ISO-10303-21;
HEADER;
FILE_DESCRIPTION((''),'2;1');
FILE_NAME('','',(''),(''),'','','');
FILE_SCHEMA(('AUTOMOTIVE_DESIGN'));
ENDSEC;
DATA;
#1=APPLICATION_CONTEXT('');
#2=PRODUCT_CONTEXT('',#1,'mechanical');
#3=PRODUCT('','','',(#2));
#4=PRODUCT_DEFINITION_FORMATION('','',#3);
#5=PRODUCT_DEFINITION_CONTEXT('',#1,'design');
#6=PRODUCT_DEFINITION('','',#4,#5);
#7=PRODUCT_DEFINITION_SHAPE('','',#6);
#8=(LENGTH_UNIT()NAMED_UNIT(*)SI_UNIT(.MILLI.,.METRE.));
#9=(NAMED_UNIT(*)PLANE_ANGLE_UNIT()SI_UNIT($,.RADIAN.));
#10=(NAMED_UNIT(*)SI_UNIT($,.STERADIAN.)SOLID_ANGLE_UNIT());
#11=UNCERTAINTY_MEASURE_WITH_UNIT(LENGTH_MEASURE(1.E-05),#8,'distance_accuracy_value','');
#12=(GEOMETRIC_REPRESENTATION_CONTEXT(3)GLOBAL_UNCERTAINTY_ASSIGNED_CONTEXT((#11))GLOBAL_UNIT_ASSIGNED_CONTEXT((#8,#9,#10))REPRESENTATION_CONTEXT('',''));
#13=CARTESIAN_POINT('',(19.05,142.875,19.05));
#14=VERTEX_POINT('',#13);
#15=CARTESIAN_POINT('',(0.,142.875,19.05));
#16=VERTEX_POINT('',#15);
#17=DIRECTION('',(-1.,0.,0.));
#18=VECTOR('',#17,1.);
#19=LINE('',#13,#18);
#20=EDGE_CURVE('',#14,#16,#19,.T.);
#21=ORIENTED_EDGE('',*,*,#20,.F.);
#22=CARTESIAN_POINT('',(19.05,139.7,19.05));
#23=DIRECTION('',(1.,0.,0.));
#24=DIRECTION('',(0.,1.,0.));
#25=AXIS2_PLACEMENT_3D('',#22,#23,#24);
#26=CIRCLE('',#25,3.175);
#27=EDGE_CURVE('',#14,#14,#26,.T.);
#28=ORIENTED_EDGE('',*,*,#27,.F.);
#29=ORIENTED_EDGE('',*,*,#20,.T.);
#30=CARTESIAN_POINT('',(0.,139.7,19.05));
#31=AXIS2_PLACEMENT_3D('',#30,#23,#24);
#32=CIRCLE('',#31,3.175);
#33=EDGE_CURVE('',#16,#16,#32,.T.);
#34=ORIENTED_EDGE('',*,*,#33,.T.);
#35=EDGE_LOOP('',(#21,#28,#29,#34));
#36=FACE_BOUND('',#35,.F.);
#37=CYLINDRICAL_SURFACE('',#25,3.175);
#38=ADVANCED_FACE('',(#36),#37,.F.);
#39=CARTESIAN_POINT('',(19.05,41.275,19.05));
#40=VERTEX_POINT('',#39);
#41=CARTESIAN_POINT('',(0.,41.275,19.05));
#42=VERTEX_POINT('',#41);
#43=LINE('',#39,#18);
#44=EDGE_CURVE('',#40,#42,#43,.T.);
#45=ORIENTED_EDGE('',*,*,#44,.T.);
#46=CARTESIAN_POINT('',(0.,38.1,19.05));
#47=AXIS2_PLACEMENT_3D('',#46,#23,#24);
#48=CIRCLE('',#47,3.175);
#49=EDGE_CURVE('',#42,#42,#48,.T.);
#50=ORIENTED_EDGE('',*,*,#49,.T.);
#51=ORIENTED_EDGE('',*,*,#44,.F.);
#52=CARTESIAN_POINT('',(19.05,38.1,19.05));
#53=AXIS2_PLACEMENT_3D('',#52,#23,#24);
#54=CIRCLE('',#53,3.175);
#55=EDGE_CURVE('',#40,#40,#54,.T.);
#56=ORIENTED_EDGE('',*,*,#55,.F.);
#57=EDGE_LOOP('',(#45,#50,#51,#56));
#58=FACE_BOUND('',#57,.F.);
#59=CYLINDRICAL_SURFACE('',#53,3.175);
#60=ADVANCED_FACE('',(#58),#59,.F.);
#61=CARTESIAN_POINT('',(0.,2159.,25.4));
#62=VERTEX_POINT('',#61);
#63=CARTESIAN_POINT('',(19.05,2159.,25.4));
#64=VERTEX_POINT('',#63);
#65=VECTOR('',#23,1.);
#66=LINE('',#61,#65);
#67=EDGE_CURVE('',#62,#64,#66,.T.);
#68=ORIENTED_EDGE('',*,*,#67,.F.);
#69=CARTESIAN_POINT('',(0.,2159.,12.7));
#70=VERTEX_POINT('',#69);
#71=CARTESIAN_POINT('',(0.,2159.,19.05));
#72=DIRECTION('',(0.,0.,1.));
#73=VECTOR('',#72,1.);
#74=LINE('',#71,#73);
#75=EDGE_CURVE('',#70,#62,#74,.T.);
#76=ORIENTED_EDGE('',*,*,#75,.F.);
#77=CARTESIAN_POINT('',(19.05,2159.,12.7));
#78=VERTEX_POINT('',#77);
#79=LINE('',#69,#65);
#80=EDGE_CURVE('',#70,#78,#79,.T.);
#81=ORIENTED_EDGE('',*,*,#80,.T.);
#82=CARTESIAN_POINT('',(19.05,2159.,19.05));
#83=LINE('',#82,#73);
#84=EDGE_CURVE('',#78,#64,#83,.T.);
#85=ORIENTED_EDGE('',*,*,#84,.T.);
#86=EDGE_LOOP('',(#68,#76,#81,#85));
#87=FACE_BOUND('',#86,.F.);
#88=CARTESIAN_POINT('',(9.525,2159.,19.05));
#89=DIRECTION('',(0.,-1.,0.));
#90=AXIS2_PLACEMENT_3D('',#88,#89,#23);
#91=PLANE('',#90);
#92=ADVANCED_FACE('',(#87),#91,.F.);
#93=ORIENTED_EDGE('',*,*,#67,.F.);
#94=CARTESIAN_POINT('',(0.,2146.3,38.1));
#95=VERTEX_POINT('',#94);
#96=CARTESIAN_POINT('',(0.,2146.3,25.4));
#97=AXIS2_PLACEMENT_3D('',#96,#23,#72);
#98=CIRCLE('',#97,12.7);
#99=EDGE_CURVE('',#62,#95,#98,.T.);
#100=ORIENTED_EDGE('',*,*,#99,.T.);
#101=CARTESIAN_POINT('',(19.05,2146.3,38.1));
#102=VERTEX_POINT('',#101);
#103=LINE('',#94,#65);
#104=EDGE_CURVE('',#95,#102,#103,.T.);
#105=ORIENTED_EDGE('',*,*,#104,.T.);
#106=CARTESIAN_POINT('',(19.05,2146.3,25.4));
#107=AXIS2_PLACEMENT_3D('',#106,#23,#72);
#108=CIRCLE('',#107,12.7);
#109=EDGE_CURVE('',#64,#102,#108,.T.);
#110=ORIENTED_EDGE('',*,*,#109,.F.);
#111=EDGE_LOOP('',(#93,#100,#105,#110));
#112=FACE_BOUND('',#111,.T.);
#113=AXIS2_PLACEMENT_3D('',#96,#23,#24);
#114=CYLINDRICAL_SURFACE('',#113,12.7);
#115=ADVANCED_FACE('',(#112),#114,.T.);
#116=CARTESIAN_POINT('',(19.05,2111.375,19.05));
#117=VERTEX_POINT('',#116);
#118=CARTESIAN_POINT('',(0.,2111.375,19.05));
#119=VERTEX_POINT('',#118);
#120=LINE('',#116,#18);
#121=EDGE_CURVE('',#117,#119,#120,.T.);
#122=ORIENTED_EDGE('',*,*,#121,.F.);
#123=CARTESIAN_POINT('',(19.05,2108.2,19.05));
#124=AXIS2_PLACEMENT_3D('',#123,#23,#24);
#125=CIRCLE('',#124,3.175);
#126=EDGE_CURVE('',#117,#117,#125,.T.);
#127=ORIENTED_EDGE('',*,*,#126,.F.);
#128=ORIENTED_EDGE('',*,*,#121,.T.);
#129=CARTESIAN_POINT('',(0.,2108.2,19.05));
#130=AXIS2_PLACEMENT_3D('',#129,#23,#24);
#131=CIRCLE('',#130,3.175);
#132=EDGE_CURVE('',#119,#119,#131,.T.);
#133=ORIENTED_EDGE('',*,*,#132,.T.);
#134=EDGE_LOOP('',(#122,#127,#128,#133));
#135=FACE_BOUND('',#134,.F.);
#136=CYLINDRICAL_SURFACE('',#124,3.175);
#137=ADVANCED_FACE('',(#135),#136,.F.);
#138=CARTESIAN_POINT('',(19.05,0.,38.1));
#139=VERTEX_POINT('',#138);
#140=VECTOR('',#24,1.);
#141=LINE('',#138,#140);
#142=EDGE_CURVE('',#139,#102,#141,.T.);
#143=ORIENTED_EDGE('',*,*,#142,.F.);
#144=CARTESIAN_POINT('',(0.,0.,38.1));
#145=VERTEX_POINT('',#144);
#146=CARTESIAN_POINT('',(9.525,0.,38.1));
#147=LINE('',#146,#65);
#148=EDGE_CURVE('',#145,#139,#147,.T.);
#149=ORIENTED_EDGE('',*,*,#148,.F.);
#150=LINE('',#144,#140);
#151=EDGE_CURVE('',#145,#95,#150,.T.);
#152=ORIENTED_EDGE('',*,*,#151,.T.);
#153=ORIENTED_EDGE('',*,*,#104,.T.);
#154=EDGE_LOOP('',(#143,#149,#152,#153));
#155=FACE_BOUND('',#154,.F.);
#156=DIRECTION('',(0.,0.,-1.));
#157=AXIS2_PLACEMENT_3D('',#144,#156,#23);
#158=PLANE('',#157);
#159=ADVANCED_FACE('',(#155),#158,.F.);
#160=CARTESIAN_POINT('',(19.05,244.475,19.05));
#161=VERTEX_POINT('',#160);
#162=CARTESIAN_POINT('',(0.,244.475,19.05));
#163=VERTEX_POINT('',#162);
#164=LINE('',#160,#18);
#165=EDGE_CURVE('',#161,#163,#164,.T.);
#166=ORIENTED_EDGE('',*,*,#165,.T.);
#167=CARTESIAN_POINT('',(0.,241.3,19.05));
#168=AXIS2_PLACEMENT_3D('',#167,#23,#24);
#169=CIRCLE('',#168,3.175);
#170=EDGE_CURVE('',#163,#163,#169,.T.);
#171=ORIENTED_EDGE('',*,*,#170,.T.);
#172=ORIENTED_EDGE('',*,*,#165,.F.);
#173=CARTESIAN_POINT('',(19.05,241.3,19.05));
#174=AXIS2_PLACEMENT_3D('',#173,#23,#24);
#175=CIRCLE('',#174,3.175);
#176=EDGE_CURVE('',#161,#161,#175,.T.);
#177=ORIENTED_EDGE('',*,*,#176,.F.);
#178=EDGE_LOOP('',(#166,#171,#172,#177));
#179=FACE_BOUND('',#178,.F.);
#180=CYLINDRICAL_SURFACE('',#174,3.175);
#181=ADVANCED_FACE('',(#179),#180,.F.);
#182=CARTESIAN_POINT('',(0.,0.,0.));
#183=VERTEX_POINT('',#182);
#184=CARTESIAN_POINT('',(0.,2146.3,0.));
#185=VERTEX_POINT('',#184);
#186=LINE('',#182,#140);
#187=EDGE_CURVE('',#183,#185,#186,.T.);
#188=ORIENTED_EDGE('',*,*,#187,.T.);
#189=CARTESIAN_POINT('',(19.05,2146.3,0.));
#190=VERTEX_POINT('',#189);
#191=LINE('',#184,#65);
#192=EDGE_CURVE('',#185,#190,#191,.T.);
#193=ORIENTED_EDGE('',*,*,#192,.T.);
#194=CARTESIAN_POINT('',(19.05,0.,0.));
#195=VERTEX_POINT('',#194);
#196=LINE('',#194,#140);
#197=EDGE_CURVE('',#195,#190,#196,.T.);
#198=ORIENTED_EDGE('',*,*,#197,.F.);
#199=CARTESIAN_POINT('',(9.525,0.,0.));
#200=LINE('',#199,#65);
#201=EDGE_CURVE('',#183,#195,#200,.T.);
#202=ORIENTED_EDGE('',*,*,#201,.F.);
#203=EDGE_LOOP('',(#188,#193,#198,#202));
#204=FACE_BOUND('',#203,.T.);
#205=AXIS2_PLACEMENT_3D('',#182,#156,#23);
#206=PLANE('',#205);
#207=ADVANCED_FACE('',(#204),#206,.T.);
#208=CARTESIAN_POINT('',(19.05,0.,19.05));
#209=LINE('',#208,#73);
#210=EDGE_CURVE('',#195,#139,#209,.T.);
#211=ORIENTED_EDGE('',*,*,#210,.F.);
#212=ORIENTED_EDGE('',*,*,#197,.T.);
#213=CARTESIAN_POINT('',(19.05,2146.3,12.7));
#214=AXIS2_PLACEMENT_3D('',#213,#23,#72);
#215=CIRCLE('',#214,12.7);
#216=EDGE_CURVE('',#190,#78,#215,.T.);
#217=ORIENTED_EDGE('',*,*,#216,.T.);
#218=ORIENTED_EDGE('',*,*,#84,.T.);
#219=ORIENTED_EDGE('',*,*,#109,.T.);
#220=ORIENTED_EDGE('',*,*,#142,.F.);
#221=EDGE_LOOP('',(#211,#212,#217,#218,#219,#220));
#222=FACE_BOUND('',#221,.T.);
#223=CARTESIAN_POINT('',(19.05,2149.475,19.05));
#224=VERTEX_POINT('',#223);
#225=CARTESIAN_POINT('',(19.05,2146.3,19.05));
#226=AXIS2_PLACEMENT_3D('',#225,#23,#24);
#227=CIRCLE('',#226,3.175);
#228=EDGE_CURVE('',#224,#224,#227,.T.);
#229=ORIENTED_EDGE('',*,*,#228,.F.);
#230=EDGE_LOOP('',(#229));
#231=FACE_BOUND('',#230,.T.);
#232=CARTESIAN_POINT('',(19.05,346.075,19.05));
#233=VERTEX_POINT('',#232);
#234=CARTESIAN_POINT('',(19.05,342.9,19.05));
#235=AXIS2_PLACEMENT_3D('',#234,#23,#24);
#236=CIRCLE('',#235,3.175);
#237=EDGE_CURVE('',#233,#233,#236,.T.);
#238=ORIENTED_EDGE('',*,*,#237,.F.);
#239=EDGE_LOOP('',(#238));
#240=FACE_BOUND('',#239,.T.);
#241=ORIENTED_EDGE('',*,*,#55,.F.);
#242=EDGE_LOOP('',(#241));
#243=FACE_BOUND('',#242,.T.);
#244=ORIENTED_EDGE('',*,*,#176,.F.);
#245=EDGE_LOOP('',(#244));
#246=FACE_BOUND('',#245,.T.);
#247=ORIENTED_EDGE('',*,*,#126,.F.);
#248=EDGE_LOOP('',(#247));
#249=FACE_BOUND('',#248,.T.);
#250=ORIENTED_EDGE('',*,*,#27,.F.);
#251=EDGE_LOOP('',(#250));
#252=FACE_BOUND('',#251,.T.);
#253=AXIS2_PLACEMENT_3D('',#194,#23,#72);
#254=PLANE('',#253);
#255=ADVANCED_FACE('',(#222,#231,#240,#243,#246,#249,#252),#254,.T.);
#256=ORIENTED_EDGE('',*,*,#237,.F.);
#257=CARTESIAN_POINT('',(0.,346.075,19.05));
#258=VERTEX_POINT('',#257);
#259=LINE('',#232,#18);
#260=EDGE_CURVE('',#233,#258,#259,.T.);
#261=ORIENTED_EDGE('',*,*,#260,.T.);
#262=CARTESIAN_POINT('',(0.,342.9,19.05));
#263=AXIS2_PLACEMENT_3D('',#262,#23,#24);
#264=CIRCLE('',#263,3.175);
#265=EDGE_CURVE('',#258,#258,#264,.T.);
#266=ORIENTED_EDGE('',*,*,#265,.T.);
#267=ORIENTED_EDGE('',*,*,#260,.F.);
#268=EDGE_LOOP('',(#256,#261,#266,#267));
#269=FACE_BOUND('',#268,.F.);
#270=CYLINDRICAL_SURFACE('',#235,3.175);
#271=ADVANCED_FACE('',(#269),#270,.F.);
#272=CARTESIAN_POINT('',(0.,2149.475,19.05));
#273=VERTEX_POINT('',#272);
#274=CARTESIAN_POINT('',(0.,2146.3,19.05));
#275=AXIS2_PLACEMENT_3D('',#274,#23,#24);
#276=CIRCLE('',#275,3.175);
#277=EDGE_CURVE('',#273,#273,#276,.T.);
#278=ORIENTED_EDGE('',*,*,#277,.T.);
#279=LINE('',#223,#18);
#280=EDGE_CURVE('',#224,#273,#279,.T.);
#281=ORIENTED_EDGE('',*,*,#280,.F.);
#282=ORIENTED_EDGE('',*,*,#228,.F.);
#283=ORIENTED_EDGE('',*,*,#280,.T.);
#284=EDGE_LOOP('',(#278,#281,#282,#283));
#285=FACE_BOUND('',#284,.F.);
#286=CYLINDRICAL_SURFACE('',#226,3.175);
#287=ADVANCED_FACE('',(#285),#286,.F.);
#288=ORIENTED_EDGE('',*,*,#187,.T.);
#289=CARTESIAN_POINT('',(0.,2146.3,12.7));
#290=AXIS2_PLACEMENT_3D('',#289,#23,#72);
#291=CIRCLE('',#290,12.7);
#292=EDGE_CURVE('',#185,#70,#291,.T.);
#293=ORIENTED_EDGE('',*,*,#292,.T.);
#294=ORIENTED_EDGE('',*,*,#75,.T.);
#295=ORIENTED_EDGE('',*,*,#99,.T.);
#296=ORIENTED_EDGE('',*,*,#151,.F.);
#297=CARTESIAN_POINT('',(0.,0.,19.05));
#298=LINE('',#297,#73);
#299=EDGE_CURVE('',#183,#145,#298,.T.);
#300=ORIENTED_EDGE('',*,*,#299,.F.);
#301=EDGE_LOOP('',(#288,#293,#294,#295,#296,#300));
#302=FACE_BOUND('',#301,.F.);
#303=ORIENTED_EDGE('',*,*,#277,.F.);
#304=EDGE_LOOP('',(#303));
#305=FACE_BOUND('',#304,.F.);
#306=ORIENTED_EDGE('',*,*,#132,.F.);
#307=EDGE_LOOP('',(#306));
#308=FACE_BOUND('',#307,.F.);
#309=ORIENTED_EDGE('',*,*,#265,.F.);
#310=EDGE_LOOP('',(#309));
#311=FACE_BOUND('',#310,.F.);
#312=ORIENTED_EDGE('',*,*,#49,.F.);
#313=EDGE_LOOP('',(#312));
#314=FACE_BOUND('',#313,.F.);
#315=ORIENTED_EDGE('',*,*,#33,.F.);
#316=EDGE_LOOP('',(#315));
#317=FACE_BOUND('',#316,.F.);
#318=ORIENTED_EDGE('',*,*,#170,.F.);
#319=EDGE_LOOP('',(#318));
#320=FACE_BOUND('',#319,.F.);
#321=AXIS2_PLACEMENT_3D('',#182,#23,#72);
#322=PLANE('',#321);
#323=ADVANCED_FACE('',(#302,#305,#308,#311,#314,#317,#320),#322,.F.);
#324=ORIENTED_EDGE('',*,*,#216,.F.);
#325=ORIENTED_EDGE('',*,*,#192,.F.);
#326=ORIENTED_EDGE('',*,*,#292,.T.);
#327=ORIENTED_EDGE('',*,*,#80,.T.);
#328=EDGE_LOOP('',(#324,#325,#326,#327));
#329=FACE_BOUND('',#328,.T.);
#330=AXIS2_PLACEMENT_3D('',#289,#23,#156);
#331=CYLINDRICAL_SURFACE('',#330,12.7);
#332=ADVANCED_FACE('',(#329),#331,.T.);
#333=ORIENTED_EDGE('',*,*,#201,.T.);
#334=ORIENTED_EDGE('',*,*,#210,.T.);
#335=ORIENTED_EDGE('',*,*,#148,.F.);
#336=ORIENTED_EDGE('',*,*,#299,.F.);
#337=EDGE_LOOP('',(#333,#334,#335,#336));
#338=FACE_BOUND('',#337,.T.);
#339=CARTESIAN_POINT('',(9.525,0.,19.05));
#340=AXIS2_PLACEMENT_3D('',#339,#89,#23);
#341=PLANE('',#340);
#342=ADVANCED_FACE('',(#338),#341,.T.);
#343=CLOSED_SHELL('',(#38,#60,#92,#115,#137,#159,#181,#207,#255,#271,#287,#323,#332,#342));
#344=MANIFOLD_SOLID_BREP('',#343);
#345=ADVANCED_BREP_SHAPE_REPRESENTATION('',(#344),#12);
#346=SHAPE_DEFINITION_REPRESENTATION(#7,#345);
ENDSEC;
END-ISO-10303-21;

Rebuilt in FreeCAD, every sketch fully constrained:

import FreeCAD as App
import Part
import Sketcher
Q = App.Units.Quantity


def edges_at(feature, points):
    """Names of the edges that pass closest to the given points."""
    edges = feature.Shape.Edges
    near = lambda p: min(range(len(edges)), key=lambda i: edges[i].distToShape(Part.Vertex(*p))[0])
    return sorted({f"Edge{near(p) + 1}" for p in points})


def add_polygon(sketch, points):
    """Adds a closed chain of lines whose ends are joined by coincident constraints."""
    first, n = sketch.GeometryCount, len(points)
    for a, b in zip(points, points[1:] + points[:1]):
        sketch.addGeometry(Part.LineSegment(App.Vector(*a, 0), App.Vector(*b, 0)), False)
    for i in range(n):
        sketch.addConstraint(Sketcher.Constraint("Coincident", first + i, 2, first + (i + 1) % n, 1))

doc = App.newDocument("Part")
body = doc.addObject("PartDesign::Body", "Body")

# Sketch on XZ plane
sketch1 = doc.addObject("Sketcher::SketchObject", "Sketch")
body.addObject(sketch1)
sketch1.AttachmentSupport = (doc.XZ_Plane, [""])
sketch1.MapMode = "FlatFace"
add_polygon(sketch1, [(0, 38), (0, 0), (19, 0), (19, 38)])  # lines 0-3
sketch1.addConstraint([
    Sketcher.Constraint("Vertical", 0),
    Sketcher.Constraint("Horizontal", 1),
    Sketcher.Constraint("Vertical", 2),
    Sketcher.Constraint("Horizontal", 3),
    Sketcher.Constraint("Coincident", 0, 2, -1, 1),
    Sketcher.Constraint("DistanceY", 0, 2, 0, 1, Q("1.5 in")),
    Sketcher.Constraint("DistanceX", 1, 1, 1, 2, Q("0.75 in")),
])
pad1 = doc.addObject("PartDesign::Pad", "Pad")
body.addObject(pad1)
pad1.Profile = sketch1
pad1.Length = Q("85 in")
pad1.Reversed = True

# Sketch on YZ plane
sketch2 = doc.addObject("Sketcher::SketchObject", "Sketch001")
body.addObject(sketch2)
sketch2.AttachmentSupport = (doc.YZ_Plane, [""])
sketch2.MapMode = "FlatFace"
sketch2.AttachmentOffset = App.Placement(App.Vector(0, 0, 0.75 * 25.4), App.Rotation())
sketch2.addGeometry([
    Part.Circle(App.Vector(38.1, 19.1, 0), App.Vector(0, 0, 1), 3.2),  # 0
    Part.Circle(App.Vector(2146.3, 19.1, 0), App.Vector(0, 0, 1), 3.2),  # 1
    Part.Circle(App.Vector(2108.2, 19.1, 0), App.Vector(0, 0, 1), 3.2),  # 2
    Part.Circle(App.Vector(139.7, 19.1, 0), App.Vector(0, 0, 1), 3.2),  # 3
    Part.Circle(App.Vector(241.3, 19.1, 0), App.Vector(0, 0, 1), 3.2),  # 4
    Part.Circle(App.Vector(342.9, 19.1, 0), App.Vector(0, 0, 1), 3.2),  # 5
], False)
sketch2.addConstraint([
    Sketcher.Constraint("Equal", 0, 1),
    Sketcher.Constraint("Equal", 1, 2),
    Sketcher.Constraint("Equal", 2, 3),
    Sketcher.Constraint("Equal", 3, 4),
    Sketcher.Constraint("Equal", 4, 5),
    Sketcher.Constraint("Horizontal", 0, 3, 1, 3),
    Sketcher.Constraint("Horizontal", 1, 3, 2, 3),
    Sketcher.Constraint("Horizontal", 2, 3, 3, 3),
    Sketcher.Constraint("Horizontal", 3, 3, 4, 3),
    Sketcher.Constraint("Horizontal", 4, 3, 5, 3),
    Sketcher.Constraint("Diameter", 0, Q("0.25 in")),
    Sketcher.Constraint("DistanceX", -1, 1, 2, 3, Q("83 in")),
    Sketcher.Constraint("DistanceX", 0, 3, 1, 3, Q("83 in")),
    Sketcher.Constraint("DistanceX", 0, 3, 3, 3, Q("4 in")),
    Sketcher.Constraint("DistanceX", 3, 3, 4, 3, Q("4 in")),
    Sketcher.Constraint("DistanceX", 4, 3, 5, 3, Q("4 in")),
    Sketcher.Constraint("DistanceX", -1, 1, 0, 3, Q("1.5 in")),
    Sketcher.Constraint("DistanceY", -1, 1, 0, 3, Q("0.75 in")),
])
pocket1 = doc.addObject("PartDesign::Pocket", "Pocket")
body.addObject(pocket1)
pocket1.Profile = sketch2
pocket1.Type = "ThroughAll"
doc.recompute()

fillet = doc.addObject("PartDesign::Fillet", "Fillet")
body.addObject(fillet)
fillet.Base = (pocket1, edges_at(pocket1, [(9.525, 2159, 38.1), (9.525, 2159, 0)]))
fillet.Radius = Q("0.5 in")

doc.recompute()
